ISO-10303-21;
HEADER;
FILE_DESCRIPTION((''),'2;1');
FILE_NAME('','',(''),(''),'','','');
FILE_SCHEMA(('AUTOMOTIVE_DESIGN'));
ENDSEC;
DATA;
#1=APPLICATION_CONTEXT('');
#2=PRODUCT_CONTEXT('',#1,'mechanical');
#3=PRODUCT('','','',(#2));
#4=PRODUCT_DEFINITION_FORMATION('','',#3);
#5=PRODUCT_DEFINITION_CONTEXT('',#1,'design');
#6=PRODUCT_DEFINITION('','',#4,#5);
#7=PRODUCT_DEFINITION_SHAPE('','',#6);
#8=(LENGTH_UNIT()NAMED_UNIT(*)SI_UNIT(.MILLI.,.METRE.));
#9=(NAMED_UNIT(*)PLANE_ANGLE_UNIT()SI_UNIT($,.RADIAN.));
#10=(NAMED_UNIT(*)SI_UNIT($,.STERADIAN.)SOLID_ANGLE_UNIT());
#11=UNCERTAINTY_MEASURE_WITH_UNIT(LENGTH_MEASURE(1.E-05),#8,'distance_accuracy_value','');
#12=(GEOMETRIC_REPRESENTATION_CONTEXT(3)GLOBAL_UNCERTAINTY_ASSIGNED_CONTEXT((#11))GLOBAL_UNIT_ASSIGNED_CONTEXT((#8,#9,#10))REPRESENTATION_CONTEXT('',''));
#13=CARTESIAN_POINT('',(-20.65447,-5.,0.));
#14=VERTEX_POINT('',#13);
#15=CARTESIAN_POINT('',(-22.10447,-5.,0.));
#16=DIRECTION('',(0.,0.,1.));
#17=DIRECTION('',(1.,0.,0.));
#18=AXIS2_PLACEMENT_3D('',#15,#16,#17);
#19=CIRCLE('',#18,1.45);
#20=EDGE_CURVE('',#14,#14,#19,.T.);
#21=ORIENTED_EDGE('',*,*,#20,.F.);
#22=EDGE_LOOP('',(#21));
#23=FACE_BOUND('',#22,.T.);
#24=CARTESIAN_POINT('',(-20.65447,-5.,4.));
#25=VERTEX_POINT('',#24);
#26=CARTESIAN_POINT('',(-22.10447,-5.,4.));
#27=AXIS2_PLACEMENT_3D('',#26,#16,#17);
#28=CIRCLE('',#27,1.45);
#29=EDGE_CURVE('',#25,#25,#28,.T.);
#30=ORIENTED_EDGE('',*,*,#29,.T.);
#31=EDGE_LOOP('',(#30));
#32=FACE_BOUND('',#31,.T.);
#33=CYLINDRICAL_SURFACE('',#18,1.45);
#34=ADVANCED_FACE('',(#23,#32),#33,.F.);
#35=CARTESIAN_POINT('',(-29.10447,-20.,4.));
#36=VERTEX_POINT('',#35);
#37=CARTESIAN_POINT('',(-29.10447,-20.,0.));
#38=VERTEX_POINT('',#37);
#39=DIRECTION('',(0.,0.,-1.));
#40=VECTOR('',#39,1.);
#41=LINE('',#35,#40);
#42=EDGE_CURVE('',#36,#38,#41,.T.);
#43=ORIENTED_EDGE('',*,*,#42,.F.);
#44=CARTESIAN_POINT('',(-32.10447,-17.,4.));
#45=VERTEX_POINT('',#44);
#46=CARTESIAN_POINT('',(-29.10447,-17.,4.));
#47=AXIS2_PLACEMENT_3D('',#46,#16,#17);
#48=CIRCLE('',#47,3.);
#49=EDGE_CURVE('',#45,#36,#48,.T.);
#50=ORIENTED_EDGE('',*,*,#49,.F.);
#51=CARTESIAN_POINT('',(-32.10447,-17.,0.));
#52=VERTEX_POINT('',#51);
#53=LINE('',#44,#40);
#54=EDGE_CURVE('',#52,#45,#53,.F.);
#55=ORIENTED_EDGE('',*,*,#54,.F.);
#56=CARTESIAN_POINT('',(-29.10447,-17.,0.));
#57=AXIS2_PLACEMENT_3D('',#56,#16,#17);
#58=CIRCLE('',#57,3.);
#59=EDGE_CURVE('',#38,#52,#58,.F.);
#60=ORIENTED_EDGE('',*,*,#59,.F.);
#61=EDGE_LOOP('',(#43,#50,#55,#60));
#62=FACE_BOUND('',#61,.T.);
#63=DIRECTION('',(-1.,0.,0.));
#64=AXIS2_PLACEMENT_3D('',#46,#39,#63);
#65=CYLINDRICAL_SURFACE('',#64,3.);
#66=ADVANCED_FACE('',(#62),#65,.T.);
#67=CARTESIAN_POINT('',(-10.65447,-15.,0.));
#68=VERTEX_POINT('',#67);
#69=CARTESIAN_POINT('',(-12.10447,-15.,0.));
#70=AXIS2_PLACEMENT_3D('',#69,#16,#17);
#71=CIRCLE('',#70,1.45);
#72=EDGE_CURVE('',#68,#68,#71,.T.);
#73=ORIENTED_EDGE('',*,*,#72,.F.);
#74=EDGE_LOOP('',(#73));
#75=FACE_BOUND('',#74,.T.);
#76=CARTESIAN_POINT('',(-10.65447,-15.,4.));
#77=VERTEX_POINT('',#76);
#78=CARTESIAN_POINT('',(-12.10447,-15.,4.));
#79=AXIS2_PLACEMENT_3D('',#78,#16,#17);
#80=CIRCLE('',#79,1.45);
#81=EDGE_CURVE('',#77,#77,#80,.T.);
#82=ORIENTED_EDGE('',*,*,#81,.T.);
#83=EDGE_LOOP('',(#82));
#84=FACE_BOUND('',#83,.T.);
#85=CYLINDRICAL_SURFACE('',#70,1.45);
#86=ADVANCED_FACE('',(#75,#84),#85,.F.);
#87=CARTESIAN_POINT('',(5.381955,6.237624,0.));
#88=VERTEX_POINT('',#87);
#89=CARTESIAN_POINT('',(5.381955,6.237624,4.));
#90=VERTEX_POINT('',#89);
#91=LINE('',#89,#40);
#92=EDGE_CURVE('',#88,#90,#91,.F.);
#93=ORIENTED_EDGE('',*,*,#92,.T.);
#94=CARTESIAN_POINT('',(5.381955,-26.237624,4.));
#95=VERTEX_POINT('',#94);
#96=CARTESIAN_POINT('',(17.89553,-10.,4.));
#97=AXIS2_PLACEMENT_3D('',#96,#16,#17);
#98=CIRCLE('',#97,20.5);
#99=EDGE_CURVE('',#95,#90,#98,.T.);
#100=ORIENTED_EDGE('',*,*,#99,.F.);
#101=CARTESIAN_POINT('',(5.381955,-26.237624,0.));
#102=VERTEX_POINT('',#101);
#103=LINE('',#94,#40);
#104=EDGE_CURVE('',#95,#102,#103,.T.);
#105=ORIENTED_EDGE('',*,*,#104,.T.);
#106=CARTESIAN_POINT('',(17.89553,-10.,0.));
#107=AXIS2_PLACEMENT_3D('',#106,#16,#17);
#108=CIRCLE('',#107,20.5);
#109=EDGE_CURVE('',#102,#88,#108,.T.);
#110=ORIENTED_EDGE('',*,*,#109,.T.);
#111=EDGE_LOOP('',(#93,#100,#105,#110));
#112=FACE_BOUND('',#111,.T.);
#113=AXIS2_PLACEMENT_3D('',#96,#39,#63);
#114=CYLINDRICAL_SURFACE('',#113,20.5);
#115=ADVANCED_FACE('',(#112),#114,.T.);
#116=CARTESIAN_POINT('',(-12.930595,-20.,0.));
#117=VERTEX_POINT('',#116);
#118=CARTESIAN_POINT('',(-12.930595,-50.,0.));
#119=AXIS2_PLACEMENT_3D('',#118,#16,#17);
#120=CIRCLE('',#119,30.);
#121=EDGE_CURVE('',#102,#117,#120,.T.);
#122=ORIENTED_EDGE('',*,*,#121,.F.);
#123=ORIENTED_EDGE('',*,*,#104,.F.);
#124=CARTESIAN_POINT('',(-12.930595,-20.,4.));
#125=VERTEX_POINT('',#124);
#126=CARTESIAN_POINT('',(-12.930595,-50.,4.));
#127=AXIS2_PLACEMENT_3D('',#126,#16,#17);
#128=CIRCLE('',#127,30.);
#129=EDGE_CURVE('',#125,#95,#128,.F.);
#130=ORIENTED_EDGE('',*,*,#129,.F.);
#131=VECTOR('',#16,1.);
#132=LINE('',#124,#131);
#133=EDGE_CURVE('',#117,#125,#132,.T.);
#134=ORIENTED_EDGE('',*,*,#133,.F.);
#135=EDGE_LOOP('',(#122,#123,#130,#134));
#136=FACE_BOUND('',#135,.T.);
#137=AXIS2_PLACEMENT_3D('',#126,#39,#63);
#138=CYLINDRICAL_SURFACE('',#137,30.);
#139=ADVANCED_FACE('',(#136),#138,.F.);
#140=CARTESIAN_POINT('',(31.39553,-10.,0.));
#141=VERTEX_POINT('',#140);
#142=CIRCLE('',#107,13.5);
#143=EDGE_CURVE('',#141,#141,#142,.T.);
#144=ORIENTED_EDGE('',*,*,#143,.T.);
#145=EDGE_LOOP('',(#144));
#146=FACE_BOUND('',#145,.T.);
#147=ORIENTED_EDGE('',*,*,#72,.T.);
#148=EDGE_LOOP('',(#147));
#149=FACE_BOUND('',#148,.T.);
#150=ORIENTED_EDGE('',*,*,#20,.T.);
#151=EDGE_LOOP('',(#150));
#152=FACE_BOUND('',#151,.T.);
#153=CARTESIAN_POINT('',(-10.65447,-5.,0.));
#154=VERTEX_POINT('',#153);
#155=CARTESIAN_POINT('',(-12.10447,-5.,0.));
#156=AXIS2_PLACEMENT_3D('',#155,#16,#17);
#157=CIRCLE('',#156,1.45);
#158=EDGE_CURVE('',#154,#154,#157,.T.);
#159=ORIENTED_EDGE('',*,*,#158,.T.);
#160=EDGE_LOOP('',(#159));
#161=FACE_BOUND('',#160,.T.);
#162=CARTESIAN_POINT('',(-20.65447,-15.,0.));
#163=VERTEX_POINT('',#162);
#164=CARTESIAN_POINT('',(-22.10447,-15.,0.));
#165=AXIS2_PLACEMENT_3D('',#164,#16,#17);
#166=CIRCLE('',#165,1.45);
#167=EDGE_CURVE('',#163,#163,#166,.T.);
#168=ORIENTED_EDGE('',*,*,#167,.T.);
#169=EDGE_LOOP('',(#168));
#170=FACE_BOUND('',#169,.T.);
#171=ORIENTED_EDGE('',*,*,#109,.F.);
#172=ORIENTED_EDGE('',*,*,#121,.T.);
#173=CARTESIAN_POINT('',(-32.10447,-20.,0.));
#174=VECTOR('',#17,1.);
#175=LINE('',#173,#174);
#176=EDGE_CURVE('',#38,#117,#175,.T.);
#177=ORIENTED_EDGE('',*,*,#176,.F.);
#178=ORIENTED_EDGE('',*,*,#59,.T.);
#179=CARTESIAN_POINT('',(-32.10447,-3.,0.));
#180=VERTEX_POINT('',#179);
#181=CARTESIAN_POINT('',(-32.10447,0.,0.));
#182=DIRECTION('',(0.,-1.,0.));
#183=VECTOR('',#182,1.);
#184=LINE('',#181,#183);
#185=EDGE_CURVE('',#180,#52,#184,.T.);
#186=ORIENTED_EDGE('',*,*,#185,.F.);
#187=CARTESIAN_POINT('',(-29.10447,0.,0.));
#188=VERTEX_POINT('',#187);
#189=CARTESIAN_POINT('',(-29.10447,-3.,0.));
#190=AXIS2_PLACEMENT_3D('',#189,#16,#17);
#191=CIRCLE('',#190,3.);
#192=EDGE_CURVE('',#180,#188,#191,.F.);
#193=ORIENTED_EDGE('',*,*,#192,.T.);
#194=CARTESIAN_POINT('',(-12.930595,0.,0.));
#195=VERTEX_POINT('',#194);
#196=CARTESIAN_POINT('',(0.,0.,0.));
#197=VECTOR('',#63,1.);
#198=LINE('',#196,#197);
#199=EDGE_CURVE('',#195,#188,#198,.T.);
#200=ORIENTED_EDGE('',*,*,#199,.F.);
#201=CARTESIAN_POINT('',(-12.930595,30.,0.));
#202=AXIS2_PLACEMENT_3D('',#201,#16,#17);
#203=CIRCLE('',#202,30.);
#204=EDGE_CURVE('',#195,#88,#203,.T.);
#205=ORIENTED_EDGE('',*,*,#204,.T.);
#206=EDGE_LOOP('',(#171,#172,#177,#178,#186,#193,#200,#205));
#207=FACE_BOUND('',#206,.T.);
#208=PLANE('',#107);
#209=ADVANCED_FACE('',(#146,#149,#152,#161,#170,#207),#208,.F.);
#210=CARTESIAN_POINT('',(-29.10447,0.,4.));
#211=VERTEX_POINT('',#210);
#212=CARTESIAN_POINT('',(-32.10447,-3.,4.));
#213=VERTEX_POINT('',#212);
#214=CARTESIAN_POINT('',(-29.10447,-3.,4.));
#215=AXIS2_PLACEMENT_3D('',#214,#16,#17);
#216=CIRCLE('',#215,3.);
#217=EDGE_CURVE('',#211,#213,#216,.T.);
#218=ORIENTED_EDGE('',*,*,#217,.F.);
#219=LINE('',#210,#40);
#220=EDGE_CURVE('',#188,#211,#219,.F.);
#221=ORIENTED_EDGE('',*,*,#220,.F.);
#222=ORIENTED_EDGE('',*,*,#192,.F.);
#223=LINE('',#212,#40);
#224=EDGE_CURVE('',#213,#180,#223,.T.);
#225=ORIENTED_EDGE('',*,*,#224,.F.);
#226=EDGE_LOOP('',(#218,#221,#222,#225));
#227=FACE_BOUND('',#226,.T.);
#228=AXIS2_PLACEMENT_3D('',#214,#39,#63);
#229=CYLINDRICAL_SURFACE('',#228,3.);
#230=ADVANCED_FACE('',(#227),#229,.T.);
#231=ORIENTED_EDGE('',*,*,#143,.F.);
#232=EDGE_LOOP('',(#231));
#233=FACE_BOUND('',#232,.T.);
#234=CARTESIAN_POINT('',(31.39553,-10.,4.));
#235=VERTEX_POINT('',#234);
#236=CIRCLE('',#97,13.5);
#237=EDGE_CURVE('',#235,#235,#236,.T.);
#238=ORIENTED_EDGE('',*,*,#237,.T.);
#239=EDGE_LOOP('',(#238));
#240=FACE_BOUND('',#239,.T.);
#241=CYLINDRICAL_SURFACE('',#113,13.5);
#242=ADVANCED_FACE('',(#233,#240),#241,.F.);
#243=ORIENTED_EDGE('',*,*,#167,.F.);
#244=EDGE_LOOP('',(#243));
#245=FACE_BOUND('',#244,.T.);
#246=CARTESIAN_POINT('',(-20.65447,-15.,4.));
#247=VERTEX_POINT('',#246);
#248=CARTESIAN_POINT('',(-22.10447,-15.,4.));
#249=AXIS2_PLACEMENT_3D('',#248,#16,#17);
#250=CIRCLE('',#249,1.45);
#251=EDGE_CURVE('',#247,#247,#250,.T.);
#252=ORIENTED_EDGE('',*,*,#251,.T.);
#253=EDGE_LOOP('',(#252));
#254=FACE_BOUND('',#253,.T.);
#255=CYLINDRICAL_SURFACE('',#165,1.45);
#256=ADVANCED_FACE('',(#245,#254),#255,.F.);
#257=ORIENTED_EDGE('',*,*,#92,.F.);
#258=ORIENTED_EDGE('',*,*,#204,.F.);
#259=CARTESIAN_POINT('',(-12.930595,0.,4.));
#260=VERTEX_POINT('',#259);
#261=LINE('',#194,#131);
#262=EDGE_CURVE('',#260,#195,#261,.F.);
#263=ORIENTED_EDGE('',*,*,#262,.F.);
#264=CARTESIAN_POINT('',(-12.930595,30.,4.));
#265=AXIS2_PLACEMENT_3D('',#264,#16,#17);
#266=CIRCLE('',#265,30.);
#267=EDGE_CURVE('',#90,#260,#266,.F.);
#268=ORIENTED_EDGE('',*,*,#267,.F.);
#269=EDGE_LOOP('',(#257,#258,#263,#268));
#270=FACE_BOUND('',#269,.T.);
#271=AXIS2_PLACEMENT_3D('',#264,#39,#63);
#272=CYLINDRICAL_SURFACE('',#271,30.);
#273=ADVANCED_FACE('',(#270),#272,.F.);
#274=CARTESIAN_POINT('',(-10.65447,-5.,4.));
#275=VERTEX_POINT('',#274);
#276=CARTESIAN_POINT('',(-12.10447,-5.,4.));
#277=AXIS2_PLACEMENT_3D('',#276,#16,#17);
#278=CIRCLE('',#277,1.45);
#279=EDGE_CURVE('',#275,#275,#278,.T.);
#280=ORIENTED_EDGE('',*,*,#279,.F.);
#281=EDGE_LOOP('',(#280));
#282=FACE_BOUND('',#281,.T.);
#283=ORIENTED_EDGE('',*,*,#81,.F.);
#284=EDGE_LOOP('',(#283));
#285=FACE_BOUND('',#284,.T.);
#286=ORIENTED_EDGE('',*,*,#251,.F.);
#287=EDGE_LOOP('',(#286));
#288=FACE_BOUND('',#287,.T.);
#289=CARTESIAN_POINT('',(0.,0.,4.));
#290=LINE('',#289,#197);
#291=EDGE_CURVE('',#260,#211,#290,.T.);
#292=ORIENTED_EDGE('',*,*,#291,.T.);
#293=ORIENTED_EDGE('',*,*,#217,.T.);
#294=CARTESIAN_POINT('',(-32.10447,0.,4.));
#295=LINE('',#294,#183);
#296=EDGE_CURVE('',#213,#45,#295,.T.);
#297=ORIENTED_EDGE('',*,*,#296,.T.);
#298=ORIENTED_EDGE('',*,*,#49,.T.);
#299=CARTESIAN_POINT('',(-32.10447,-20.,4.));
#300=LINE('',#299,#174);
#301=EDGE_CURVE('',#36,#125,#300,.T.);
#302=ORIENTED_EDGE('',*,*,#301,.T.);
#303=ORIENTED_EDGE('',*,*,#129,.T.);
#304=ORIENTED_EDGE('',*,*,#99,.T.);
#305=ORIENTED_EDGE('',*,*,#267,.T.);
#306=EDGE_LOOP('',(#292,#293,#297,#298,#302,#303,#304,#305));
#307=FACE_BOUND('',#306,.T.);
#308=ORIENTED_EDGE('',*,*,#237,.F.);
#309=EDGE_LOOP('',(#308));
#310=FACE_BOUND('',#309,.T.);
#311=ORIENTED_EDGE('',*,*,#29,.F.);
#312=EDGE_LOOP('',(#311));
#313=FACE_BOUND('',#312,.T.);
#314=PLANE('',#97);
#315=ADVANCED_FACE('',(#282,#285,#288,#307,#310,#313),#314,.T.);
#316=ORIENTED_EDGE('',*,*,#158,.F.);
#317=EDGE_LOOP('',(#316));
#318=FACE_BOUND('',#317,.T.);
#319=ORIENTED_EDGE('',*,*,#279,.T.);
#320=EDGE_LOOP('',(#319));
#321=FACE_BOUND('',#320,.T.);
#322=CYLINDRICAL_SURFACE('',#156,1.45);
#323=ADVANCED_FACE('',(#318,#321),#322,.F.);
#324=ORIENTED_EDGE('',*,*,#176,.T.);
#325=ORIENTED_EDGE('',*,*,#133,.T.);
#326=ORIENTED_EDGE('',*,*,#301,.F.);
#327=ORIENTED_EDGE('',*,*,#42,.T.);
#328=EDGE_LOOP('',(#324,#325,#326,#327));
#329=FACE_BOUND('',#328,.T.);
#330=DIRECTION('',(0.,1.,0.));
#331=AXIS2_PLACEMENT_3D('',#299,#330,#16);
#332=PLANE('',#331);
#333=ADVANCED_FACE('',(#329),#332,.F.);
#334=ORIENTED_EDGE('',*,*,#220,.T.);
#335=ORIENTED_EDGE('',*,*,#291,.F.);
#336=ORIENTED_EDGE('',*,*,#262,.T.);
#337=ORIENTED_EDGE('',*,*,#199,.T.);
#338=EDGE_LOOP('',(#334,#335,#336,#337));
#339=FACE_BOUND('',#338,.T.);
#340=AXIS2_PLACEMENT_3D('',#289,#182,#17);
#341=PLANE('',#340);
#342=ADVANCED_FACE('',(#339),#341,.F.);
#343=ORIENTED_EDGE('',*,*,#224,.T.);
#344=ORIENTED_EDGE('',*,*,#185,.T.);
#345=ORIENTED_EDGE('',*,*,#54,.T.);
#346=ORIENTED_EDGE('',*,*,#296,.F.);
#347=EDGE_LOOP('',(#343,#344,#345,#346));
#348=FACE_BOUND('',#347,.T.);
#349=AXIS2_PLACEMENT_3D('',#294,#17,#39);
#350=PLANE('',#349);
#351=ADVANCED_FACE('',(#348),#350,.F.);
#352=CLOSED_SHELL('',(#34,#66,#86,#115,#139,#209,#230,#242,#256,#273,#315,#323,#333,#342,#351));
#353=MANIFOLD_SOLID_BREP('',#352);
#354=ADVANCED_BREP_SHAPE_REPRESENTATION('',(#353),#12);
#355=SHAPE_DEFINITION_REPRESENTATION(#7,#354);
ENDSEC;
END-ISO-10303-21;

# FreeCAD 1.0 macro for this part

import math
import FreeCAD as App
import Part
import Sketcher
Q = App.Units.Quantity


def edges_at(feature, points):
    """Names of the edges that pass closest to the given points."""
    edges = feature.Shape.Edges
    near = lambda p: min(range(len(edges)), key=lambda i: edges[i].distToShape(Part.Vertex(*p))[0])
    return sorted({f"Edge{near(p) + 1}" for p in points})

doc = App.newDocument("Part")
body = doc.addObject("PartDesign::Body", "Body")

sketch1 = doc.addObject("Sketcher::SketchObject", "Sketch")
body.addObject(sketch1)
sketch1.AttachmentSupport = (doc.XY_Plane, [""])
sketch1.MapMode = "FlatFace"
sketch1.addGeometry([
    Part.LineSegment(App.Vector(0, 0, 0), App.Vector(-32.10447, 0, 0)),
    Part.LineSegment(App.Vector(-32.10447, 0, 0), App.Vector(-32.10447, -20, 0)),
    Part.LineSegment(App.Vector(-32.10447, -20, 0), App.Vector(0, -20, 0)),
    Part.ArcOfCircle(Part.Circle(App.Vector(17.89553, -10, 0), App.Vector(0, 0, 1), 20.5), math.radians(-150.803596), math.radians(150.803596)),
    Part.Circle(App.Vector(17.89553, -10, 0), App.Vector(0, 0, 1), 13.5),
], False)
sketch1.addConstraint([
    Sketcher.Constraint("Coincident", 0, 2, 1, 1),
    Sketcher.Constraint("Coincident", 1, 2, 2, 1),
    Sketcher.Constraint("Coincident", 2, 2, 3, 1),
    Sketcher.Constraint("Coincident", 3, 2, 0, 1),
    Sketcher.Constraint("Horizontal", 0),
    Sketcher.Constraint("Vertical", 1),
    Sketcher.Constraint("Horizontal", 2),
    Sketcher.Constraint("Coincident", 3, 2, -1, 1),
    Sketcher.Constraint("Coincident", 4, 3, 3, 3),
    Sketcher.Constraint("PointOnObject", 2, 2, -2),
    Sketcher.Constraint("Diameter", 4, Q("27 mm")),
    Sketcher.Constraint("Radius", 3, Q("20.5 mm")),
    Sketcher.Constraint("DistanceY", 1, 2, 1, 1, Q("20 mm")),
    Sketcher.Constraint("DistanceX", 0, 2, 3, 3, Q("50 mm")),
])
pad1 = doc.addObject("PartDesign::Pad", "Pad")
body.addObject(pad1)
pad1.Profile = sketch1
pad1.Length = 4

sketch2 = doc.addObject("Sketcher::SketchObject", "Sketch001")
body.addObject(sketch2)
sketch2.AttachmentSupport = (doc.XY_Plane, [""])
sketch2.MapMode = "FlatFace"
sketch2.AttachmentOffset = App.Placement(App.Vector(0, 0, 4), App.Rotation())
sketch2.addGeometry([
    Part.Circle(App.Vector(-22.10447, -5, 0), App.Vector(0, 0, 1), 1.45),
    Part.Circle(App.Vector(-12.10447, -5, 0), App.Vector(0, 0, 1), 1.45),
    Part.Circle(App.Vector(-12.10447, -15, 0), App.Vector(0, 0, 1), 1.45),
    Part.Circle(App.Vector(-22.10447, -15, 0), App.Vector(0, 0, 1), 1.45),
], False)
sketch2.addConstraint([
    Sketcher.Constraint("Equal", 0, 1),
    Sketcher.Constraint("Equal", 1, 2),
    Sketcher.Constraint("Equal", 2, 3),
    Sketcher.Constraint("Horizontal", 0, 3, 1, 3),
    Sketcher.Constraint("Horizontal", 2, 3, 3, 3),
    Sketcher.Constraint("Vertical", 1, 3, 2, 3),
    Sketcher.Constraint("Vertical", 0, 3, 3, 3),
    Sketcher.Constraint("Diameter", 0, Q("2.9 mm")),
    Sketcher.Constraint("DistanceY", 0, 3, -1, 1, Q("5 mm")),
    Sketcher.Constraint("DistanceY", 2, 3, -1, 1, Q("15 mm")),
    Sketcher.Constraint("DistanceX", 0, 3, 1, 3, Q("10 mm")),
    Sketcher.Constraint("DistanceX", 0, 3, -1, 1, Q("22.10447 mm")),
])
pocket1 = doc.addObject("PartDesign::Pocket", "Pocket")
body.addObject(pocket1)
pocket1.Profile = sketch2
pocket1.Type = "ThroughAll"
doc.recompute()

fillet = doc.addObject("PartDesign::Fillet", "Fillet")
body.addObject(fillet)
fillet.Base = (pocket1, edges_at(pocket1, [(0, -20, 2), (0, 0, 2)]))
fillet.Radius = 30
doc.recompute()

fillet2 = doc.addObject("PartDesign::Fillet", "Fillet001")
body.addObject(fillet2)
fillet2.Base = (fillet, edges_at(fillet, [(-32.104, -20, 2), (-32.104, 0, 2)]))
fillet2.Radius = 3

doc.recompute()
